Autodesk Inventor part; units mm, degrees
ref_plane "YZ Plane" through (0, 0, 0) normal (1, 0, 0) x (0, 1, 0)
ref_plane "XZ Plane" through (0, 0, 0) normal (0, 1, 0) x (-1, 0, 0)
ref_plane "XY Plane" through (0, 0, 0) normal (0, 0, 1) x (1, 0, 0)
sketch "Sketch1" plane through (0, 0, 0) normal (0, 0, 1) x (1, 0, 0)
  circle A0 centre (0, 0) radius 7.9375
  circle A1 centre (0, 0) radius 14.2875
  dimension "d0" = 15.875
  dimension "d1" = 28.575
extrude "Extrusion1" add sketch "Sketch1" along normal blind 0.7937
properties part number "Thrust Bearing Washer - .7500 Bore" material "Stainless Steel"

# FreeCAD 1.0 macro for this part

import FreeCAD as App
import Part
import Sketcher

V = App.Vector
Q = App.Units.Quantity

doc = App.newDocument("Part")
body = doc.addObject("PartDesign::Body", "Body")

# Sketch on XY plane
sketch1 = body.newObject("Sketcher::SketchObject", "Sketch")
sketch1.AttachmentSupport = (doc.getObject("XY_Plane"), [""])
sketch1.MapMode = "FlatFace"
sketch1.addGeometry([
    Part.Circle(V(0, 0, 0), V(0, 0, 1), 14),
    Part.Circle(V(0, 0, 0), V(0, 0, 1), 8),
], False)
sketch1.addConstraint([
    Sketcher.Constraint("Coincident", 0, 3, -1, 1),
    Sketcher.Constraint("Coincident", 1, 3, -1, 1),
    Sketcher.Constraint("Diameter", 0, Q("1.125 in")),
    Sketcher.Constraint("Diameter", 1, Q("0.625 in")),
])
pad1 = body.newObject("PartDesign::Pad", "Pad")
pad1.Profile = sketch1
pad1.Length = Q("0.031248 in")

doc.recompute()
